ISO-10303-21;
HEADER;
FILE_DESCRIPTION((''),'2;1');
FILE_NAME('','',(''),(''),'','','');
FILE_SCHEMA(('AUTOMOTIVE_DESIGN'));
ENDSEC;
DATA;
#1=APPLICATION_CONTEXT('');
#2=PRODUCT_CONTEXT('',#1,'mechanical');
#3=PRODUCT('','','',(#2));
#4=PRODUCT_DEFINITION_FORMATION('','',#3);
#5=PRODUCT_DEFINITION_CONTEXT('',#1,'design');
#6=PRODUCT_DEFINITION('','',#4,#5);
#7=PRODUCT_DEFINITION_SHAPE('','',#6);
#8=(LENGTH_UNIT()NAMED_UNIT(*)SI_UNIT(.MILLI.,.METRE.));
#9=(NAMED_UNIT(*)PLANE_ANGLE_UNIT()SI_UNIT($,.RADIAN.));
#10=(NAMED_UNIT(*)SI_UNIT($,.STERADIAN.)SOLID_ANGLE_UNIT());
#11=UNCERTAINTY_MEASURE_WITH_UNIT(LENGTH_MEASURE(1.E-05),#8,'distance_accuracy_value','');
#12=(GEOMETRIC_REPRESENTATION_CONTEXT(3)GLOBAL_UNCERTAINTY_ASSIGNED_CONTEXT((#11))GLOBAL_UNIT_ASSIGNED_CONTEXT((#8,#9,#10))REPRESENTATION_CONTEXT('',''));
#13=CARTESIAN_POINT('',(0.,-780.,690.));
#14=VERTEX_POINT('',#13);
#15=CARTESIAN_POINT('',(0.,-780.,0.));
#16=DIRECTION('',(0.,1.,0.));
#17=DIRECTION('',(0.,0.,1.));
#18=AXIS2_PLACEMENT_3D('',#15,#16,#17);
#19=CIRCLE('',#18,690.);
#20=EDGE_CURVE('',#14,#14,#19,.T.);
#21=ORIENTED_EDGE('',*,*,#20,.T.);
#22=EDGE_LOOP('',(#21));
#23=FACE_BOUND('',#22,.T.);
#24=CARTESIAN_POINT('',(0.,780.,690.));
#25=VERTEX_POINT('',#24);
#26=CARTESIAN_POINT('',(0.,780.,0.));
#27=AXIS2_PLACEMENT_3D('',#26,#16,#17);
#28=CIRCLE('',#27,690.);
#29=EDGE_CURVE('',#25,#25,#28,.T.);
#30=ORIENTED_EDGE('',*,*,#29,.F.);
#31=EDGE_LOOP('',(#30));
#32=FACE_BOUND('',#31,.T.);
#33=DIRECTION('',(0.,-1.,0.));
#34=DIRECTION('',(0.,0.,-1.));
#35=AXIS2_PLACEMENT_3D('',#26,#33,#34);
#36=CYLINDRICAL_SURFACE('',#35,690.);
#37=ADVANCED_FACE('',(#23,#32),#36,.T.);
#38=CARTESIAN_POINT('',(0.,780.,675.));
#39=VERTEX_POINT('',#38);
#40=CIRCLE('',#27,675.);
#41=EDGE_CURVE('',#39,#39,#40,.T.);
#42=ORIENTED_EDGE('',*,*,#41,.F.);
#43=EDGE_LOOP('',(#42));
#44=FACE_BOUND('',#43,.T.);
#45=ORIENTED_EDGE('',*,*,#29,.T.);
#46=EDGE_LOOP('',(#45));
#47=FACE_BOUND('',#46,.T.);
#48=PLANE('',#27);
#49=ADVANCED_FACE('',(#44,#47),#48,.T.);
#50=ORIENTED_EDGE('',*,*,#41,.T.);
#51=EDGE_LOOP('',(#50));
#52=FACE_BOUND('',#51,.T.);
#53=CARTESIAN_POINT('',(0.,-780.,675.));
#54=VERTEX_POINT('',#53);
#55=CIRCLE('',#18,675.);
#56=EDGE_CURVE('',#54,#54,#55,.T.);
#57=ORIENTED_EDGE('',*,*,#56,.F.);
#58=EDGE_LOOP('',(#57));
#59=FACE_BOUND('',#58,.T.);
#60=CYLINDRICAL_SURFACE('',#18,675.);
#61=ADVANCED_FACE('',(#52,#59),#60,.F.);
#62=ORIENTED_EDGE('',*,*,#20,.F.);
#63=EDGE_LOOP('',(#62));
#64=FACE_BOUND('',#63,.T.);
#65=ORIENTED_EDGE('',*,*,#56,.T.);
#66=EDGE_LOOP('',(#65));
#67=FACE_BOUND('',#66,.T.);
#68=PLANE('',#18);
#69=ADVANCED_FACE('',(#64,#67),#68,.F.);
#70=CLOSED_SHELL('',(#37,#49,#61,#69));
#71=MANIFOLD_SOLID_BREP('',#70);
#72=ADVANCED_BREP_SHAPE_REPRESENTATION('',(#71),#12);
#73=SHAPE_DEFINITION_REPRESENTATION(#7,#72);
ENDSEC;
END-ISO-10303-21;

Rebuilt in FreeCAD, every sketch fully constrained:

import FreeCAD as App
import Part
import Sketcher
from FreeCAD import Vector
Q = App.Units.Quantity

doc = App.newDocument("Part")
body = doc.addObject("PartDesign::Body", "Body")

sketch1 = body.newObject("Sketcher::SketchObject", "Sketch")
sketch1.AttachmentSupport = (doc.getObject("XZ_Plane"), [""])
sketch1.MapMode = "FlatFace"
sketch1.addGeometry(Part.Circle(Vector(0, 0, 0), Vector(0, 0, 1), 690), False)
sketch1.addConstraint(Sketcher.Constraint("Coincident", 0, 3, -1, 1))
sketch1.addConstraint(Sketcher.Constraint("Diameter", 0, Q("1380 mm")))
pad1 = body.newObject("PartDesign::Pad", "Pad")
pad1.Profile = sketch1
pad1.Length = 1560
pad1.Midplane = True

sketch2 = body.newObject("Sketcher::SketchObject", "Sketch001")
sketch2.AttachmentSupport = (doc.getObject("XZ_Plane"), [""])
sketch2.MapMode = "FlatFace"
sketch2.addGeometry(Part.Circle(Vector(0, 0, 0), Vector(0, 0, 1), 675), False)
sketch2.addConstraint(Sketcher.Constraint("Coincident", 0, 3, -1, 1))
sketch2.addConstraint(Sketcher.Constraint("Diameter", 0, Q("1350 mm")))
pocket1 = body.newObject("PartDesign::Pocket", "Pocket")
pocket1.Profile = sketch2
pocket1.Type = "ThroughAll"
pocket1.Midplane = True

doc.recompute()
